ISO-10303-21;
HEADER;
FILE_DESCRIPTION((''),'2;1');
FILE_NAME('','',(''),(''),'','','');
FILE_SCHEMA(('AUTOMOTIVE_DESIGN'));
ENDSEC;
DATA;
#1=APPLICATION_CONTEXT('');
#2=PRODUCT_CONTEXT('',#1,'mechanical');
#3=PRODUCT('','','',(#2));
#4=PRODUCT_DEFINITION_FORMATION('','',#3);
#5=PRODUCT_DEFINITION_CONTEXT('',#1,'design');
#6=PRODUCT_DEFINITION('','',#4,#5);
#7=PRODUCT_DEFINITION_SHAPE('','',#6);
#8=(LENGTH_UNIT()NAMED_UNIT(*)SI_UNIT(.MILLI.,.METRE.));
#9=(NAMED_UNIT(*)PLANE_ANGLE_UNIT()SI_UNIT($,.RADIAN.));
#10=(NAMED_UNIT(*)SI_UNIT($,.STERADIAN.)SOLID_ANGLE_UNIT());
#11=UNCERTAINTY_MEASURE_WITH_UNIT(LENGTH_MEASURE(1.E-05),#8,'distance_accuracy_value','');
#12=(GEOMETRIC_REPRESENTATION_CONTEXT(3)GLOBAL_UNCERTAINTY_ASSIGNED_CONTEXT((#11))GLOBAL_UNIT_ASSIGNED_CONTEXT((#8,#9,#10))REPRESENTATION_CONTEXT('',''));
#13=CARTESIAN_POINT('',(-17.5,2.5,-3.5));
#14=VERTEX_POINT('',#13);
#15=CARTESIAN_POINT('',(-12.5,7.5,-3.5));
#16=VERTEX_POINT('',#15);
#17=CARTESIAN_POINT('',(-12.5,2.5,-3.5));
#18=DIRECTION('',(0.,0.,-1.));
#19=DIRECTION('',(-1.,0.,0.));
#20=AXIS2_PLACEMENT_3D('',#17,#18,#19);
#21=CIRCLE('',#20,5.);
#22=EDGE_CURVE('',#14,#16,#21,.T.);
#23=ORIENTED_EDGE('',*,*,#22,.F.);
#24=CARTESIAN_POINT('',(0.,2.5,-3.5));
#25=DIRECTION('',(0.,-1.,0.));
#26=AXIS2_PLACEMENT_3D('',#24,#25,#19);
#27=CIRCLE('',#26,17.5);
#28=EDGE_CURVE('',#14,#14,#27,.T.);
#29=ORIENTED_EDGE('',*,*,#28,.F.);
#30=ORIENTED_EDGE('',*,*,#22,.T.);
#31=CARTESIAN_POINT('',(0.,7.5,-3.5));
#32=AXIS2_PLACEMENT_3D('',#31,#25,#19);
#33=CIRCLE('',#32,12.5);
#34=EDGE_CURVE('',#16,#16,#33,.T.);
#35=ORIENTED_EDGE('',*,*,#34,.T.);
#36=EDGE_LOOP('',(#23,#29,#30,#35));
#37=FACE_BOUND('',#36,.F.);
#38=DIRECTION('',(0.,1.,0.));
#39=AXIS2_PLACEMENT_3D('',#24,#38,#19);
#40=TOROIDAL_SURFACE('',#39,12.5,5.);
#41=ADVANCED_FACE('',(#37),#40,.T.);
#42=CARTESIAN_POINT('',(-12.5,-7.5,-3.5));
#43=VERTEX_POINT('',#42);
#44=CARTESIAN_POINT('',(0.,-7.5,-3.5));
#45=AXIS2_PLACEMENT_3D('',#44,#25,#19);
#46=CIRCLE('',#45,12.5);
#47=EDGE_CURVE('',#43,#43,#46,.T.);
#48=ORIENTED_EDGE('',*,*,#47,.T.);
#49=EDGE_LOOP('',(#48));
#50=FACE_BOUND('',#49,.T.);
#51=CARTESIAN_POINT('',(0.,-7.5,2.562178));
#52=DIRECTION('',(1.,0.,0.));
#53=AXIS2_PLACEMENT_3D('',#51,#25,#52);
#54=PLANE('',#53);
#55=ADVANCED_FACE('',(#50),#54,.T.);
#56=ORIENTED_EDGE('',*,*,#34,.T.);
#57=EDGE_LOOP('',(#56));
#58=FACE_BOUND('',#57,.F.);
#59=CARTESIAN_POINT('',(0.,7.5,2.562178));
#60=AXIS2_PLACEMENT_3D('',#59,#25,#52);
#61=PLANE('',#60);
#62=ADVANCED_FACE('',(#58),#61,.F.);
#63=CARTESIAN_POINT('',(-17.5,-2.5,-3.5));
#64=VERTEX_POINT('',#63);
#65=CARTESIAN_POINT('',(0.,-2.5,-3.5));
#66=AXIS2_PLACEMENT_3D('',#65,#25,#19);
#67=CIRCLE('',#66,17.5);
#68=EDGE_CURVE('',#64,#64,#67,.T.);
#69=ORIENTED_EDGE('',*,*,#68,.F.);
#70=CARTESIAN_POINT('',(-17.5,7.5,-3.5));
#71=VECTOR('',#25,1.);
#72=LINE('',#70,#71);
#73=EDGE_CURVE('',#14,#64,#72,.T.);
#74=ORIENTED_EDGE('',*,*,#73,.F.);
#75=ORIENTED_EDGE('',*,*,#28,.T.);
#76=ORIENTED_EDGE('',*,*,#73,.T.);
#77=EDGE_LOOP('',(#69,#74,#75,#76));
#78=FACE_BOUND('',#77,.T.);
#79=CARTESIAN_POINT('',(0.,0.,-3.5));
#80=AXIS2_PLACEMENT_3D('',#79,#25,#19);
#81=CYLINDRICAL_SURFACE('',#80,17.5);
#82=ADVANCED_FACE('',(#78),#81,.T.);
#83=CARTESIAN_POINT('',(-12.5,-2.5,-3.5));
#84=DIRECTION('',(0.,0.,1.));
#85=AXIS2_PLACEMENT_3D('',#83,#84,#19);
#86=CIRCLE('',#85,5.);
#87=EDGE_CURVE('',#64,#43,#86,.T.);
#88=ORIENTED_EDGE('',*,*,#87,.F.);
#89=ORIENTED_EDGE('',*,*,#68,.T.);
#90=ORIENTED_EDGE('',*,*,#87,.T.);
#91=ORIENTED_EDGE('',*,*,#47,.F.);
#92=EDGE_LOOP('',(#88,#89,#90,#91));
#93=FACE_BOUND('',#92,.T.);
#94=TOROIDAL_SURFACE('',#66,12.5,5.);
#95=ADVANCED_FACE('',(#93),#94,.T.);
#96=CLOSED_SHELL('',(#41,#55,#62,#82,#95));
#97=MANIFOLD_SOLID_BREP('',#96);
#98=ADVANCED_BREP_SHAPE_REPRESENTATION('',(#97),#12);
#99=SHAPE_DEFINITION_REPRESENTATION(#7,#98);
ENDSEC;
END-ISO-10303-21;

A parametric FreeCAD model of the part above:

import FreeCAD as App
import Part
import Sketcher

V = App.Vector

doc = App.newDocument("Part")
params = doc.addObject("Spreadsheet::Sheet", "Params")
for row, (alias, value) in enumerate([
    ("sketch1_diameter", "35 mm"),
    ("pad1_length", "15 mm"),
    ("fillet_radius", "5 mm"),
], start=1):
    params.set(f"A{row}", alias)
    params.set(f"B{row}", "=" + value)
    params.setAlias(f"B{row}", alias)

body = doc.addObject("PartDesign::Body", "Body")

sketch1 = body.newObject("Sketcher::SketchObject", "Sketch")
sketch1.AttachmentSupport = (doc.getObject("XZ_Plane"), [""])
sketch1.MapMode = "FlatFace"
sketch1.addGeometry(Part.Circle(V(0, -4, 0), V(0, 0, 1), 18), False)
sketch1.addConstraint([
    Sketcher.Constraint("PointOnObject", 0, 3, -2),
    Sketcher.Constraint("Diameter", 0, 35.0),
    Sketcher.Constraint("DistanceY", 0, 3, -1, 1, 3.5),
])
sketch1.setExpression("Constraints[1]", "Params.sketch1_diameter")
pad1 = body.newObject("PartDesign::Pad", "Pad")
pad1.Profile = sketch1
pad1.setExpression("Length", "Params.pad1_length")
pad1.Midplane = True
doc.recompute()

fillet = body.newObject("PartDesign::Fillet", "Fillet")
fillet.Base = (pad1, ["Edge1"])
fillet.UseAllEdges = True
fillet.setExpression("Radius", "Params.fillet_radius")

doc.recompute()
